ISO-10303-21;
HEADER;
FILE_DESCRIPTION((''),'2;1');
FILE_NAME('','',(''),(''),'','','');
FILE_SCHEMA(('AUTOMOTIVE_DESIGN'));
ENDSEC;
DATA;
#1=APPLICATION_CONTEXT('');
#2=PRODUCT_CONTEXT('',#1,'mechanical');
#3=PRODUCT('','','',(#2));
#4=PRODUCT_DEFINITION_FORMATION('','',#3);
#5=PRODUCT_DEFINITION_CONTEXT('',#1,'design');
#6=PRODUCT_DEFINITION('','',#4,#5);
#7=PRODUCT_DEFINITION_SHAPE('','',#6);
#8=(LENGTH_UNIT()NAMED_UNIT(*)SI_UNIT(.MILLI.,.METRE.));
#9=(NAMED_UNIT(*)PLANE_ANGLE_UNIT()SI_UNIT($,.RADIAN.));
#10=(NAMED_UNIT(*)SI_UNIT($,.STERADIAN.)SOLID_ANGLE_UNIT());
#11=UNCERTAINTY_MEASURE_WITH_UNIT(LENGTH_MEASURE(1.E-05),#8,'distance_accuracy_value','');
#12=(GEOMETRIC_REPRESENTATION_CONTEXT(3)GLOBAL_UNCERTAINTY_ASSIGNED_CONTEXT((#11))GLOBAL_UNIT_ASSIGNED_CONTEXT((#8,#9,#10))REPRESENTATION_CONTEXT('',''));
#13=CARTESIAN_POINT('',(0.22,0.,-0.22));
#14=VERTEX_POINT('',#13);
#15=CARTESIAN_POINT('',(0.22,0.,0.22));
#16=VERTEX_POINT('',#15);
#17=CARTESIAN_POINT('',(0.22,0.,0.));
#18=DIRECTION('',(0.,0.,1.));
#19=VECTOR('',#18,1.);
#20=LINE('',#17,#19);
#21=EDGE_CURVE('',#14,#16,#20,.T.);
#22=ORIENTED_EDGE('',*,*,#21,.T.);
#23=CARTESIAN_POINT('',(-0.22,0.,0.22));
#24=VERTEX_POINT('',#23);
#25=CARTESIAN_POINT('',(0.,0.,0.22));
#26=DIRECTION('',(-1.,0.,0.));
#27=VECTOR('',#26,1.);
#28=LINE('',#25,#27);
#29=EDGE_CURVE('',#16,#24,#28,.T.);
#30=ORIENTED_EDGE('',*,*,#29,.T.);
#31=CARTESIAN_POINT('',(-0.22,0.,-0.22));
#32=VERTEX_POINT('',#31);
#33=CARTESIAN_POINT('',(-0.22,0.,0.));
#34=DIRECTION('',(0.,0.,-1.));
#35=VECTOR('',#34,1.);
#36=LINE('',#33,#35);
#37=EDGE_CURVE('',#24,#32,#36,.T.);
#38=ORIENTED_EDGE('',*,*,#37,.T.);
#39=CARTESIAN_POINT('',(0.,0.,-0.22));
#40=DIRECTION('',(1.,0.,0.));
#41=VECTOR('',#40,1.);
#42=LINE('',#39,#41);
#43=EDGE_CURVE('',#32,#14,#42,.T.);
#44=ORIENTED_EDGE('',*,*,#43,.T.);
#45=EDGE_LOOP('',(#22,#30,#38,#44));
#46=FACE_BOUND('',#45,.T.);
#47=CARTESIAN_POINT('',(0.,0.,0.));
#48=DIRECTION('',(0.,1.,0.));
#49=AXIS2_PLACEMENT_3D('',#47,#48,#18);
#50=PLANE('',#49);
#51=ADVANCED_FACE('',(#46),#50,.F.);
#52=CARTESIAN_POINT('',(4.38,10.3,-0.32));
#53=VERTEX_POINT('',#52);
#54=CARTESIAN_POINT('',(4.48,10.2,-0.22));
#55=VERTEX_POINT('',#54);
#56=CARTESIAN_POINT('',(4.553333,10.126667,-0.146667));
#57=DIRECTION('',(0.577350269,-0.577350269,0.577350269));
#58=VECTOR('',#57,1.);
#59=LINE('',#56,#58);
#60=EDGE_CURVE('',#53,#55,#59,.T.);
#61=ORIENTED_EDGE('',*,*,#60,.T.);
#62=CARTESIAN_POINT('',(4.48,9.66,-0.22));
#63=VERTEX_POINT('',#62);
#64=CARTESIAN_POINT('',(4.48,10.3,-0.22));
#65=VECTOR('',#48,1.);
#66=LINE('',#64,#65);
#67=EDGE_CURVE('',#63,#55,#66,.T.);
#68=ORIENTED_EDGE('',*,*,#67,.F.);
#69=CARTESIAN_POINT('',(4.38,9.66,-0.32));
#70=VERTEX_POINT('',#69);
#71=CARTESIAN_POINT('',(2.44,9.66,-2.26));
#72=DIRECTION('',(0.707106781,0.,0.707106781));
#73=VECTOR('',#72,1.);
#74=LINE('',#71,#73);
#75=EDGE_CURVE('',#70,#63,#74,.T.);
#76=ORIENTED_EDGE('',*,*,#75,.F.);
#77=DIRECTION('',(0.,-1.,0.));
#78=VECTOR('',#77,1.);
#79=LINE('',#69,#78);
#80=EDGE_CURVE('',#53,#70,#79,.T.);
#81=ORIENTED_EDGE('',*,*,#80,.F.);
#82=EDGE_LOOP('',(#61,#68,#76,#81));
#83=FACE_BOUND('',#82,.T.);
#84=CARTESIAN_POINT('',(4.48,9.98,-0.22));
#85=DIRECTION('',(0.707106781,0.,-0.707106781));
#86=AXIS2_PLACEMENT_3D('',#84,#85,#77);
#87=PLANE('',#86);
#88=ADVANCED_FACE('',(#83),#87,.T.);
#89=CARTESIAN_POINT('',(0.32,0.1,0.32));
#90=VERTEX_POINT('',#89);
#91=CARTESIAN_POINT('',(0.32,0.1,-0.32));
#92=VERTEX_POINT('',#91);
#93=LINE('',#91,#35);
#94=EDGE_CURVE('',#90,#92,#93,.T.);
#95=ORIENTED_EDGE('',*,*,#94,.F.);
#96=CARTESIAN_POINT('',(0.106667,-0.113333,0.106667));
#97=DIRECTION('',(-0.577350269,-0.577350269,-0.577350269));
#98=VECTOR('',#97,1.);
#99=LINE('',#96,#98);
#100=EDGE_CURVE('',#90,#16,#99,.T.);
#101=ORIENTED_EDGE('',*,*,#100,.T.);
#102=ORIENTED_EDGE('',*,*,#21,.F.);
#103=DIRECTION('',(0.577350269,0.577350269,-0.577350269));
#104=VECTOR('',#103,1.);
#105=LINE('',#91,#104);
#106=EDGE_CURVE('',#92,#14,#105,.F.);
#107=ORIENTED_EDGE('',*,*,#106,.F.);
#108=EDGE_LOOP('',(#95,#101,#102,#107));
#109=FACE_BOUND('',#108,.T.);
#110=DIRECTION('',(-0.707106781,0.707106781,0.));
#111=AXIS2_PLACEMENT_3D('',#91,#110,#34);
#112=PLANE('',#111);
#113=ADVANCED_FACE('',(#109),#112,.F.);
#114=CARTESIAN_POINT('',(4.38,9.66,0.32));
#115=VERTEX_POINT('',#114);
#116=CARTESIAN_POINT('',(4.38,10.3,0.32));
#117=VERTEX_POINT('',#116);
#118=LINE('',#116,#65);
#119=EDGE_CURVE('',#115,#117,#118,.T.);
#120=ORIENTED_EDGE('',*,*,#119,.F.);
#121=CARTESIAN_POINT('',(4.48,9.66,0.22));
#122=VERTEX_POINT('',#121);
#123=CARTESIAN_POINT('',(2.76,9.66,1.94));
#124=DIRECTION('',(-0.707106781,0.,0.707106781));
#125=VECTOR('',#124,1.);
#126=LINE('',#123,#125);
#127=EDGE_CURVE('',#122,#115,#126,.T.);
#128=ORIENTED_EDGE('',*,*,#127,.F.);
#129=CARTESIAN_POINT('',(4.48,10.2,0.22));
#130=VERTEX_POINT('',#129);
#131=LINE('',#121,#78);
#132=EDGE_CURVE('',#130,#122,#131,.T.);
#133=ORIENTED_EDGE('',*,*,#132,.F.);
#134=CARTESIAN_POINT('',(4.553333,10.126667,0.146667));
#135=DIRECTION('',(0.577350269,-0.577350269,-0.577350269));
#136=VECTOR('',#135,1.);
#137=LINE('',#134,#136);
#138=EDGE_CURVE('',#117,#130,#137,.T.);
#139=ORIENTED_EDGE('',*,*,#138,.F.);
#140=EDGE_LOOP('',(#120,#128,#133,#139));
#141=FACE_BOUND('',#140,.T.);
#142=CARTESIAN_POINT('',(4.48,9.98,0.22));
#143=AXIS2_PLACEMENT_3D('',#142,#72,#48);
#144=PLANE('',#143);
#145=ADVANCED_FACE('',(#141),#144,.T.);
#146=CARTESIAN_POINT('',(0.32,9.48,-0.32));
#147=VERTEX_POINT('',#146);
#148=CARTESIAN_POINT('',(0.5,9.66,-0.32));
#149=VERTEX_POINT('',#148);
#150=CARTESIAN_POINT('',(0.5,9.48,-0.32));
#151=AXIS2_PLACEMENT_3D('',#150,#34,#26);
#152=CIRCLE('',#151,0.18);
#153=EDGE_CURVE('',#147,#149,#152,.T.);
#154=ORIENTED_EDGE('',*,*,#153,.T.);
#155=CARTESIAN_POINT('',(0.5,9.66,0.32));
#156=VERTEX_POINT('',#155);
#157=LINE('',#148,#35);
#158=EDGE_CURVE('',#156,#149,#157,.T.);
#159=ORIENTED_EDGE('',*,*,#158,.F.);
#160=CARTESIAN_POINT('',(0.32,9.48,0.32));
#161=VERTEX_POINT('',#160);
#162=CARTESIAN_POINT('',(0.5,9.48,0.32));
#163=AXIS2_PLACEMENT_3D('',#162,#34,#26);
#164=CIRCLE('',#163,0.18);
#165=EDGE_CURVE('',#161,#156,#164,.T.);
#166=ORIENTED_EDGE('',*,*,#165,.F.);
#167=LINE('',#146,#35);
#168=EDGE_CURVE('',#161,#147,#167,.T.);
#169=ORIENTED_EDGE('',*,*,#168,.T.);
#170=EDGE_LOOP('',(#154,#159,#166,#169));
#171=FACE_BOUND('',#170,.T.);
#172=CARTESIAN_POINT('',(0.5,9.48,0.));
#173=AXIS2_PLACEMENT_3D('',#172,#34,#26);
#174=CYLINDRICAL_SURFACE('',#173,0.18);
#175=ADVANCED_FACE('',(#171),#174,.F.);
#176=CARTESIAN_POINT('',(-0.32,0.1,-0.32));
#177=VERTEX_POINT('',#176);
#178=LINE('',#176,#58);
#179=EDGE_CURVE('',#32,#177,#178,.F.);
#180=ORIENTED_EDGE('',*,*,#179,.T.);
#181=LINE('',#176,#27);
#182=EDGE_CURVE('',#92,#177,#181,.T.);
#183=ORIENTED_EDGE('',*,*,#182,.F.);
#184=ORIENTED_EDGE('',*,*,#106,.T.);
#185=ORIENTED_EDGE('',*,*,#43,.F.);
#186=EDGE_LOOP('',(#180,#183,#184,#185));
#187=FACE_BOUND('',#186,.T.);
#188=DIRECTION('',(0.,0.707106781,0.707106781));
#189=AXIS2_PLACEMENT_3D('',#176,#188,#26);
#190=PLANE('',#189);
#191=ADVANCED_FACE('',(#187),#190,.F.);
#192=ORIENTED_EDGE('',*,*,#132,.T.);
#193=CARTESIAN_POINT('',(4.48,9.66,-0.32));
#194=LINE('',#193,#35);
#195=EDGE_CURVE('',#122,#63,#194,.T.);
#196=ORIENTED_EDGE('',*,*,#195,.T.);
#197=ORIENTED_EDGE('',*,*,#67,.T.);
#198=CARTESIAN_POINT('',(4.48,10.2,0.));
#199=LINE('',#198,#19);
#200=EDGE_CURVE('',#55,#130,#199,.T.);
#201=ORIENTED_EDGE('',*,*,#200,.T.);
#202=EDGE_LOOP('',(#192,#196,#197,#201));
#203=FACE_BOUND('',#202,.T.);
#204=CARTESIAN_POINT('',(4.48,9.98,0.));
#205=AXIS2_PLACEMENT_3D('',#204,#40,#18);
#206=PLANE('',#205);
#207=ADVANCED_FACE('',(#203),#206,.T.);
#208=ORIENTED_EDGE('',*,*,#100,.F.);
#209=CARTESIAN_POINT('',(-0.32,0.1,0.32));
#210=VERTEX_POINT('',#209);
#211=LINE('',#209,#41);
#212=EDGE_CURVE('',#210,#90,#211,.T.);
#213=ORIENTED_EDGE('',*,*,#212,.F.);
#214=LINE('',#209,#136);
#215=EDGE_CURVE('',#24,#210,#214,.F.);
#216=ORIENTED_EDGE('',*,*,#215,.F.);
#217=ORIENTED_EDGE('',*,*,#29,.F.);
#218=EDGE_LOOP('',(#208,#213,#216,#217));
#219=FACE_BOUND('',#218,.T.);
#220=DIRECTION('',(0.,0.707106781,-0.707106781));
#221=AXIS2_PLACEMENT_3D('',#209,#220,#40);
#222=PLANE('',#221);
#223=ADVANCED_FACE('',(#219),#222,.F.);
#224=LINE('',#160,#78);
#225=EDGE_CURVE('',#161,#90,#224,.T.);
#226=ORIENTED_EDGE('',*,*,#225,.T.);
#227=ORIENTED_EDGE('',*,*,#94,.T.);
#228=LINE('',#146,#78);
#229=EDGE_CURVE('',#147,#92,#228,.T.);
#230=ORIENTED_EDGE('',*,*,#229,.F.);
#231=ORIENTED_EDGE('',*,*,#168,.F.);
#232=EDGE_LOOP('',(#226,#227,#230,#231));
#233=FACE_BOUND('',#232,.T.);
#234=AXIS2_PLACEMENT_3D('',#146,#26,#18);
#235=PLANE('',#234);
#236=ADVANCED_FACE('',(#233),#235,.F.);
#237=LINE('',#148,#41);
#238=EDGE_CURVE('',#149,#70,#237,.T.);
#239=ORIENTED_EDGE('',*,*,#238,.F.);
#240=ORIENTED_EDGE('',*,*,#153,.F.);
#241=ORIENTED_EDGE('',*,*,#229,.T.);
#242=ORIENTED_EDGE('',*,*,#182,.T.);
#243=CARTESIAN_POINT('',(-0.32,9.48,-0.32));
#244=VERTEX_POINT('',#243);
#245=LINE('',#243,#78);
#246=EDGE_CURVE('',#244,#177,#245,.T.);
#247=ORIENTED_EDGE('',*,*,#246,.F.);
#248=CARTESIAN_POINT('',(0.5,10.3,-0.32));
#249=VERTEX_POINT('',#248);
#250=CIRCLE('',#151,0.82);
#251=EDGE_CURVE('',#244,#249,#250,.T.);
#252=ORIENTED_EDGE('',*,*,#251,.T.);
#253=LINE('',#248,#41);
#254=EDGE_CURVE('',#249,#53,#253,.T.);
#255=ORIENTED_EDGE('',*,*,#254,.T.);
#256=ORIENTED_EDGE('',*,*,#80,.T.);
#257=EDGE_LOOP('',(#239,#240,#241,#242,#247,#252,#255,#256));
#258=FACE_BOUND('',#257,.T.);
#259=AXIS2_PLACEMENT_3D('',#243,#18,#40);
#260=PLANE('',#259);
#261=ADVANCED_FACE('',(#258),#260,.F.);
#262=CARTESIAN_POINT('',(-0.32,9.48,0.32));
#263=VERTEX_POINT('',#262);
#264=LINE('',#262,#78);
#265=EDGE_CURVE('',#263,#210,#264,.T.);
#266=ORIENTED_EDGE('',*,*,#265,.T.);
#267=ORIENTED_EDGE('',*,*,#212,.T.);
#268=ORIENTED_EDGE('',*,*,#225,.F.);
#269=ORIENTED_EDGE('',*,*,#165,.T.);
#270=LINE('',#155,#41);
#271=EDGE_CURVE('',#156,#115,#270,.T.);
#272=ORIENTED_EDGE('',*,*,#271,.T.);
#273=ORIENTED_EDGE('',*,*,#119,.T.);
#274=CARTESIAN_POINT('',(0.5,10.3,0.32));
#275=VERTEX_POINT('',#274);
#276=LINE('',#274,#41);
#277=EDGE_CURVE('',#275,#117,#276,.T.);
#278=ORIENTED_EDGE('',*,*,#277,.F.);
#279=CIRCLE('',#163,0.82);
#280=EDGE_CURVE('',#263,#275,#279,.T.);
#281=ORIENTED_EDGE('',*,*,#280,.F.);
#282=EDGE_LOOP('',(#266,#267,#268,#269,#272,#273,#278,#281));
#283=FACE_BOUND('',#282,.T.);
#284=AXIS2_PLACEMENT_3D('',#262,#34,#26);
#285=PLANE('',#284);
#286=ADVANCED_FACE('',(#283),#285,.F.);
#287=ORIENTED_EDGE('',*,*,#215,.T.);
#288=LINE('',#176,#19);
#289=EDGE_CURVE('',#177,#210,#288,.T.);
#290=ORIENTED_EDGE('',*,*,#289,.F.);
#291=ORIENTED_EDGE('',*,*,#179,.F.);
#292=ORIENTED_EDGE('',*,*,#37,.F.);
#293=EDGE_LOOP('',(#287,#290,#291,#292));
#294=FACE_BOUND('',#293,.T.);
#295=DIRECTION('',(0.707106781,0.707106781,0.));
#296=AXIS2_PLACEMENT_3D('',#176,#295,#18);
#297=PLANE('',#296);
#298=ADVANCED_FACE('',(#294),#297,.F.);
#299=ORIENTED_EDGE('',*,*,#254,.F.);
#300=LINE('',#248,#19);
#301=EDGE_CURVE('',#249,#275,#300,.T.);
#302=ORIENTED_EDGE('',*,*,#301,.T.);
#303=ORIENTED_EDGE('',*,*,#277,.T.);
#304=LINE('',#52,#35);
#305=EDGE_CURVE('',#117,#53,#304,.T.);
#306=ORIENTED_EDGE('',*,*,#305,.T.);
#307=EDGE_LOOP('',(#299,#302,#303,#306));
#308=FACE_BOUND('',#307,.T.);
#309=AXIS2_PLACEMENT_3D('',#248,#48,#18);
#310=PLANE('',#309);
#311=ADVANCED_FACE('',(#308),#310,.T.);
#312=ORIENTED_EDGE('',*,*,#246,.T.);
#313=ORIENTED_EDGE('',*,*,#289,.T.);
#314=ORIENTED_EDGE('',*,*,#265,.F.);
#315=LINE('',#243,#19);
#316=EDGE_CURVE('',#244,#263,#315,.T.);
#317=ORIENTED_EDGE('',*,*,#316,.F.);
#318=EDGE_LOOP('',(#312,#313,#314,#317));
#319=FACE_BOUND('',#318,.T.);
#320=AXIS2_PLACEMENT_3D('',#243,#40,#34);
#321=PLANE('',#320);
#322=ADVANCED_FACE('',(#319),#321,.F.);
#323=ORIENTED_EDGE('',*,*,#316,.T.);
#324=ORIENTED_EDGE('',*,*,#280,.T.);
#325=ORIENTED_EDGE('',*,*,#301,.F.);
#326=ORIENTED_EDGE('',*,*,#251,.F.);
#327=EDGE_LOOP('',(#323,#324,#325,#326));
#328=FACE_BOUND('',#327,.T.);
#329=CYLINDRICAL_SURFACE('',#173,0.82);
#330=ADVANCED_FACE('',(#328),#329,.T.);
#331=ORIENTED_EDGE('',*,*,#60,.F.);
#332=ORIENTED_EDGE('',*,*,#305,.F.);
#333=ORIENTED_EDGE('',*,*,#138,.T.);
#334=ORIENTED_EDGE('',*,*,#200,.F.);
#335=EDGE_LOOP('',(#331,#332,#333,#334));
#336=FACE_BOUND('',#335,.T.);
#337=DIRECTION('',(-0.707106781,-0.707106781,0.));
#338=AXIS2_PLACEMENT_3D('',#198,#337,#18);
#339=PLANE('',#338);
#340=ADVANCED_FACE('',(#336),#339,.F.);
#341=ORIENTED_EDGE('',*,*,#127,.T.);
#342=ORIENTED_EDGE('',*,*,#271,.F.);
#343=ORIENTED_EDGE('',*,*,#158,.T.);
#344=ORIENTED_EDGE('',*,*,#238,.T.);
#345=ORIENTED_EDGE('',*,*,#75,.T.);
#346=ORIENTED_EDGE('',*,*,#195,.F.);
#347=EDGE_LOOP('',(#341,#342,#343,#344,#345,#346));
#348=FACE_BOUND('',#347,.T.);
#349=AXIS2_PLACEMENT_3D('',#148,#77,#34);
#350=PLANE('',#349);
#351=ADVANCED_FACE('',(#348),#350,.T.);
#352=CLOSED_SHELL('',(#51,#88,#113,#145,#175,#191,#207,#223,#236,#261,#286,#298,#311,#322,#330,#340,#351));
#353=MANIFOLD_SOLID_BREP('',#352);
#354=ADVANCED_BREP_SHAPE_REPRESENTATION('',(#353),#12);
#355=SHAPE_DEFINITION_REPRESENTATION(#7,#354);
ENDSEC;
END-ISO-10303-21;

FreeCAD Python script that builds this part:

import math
import FreeCAD as App
import Part
import Sketcher
from FreeCAD import Vector
Q = App.Units.Quantity


def edges_at(feature, points):
    """Names of the edges that pass closest to the given points."""
    edges = feature.Shape.Edges
    near = lambda p: min(range(len(edges)), key=lambda i: edges[i].distToShape(Part.Vertex(*p))[0])
    return sorted({f"Edge{near(p) + 1}" for p in points})

doc = App.newDocument("Part")
params = doc.addObject("Spreadsheet::Sheet", "Params")
for row, (alias, value) in enumerate([
    ("sketch1_width", "0.64 mm"),
    ("sketch2_radius", "0.5 mm"),
    ("sketch2_width", "3.98 mm"),
    ("sketch2_height", "9.48 mm"),
    ("chamfer_size", "0.1 mm"),
], start=1):
    params.set(f"A{row}", alias)
    params.set(f"B{row}", "=" + value)
    params.setAlias(f"B{row}", alias)

body = doc.addObject("PartDesign::Body", "Body")

sketch1 = body.newObject("Sketcher::SketchObject", "Sketch")
sketch1.AttachmentSupport = (doc.getObject("XZ_Plane"), [""])
sketch1.MapMode = "FlatFace"
sketch1.addGeometry(Part.LineSegment(Vector(-0.32, -0.32, 0), Vector(-0.32, 0.32, 0)), False)
sketch1.addGeometry(Part.LineSegment(Vector(-0.32, 0.32, 0), Vector(0.32, 0.32, 0)), False)
sketch1.addGeometry(Part.LineSegment(Vector(0.32, 0.32, 0), Vector(0.32, -0.32, 0)), False)
sketch1.addGeometry(Part.LineSegment(Vector(0.32, -0.32, 0), Vector(-0.32, -0.32, 0)), False)
sketch1.addConstraint(Sketcher.Constraint("Coincident", 0, 2, 1, 1))
sketch1.addConstraint(Sketcher.Constraint("Coincident", 1, 2, 2, 1))
sketch1.addConstraint(Sketcher.Constraint("Coincident", 2, 2, 3, 1))
sketch1.addConstraint(Sketcher.Constraint("Coincident", 3, 2, 0, 1))
sketch1.addConstraint(Sketcher.Constraint("Vertical", 0))
sketch1.addConstraint(Sketcher.Constraint("Horizontal", 1))
sketch1.addConstraint(Sketcher.Constraint("Vertical", 2))
sketch1.addConstraint(Sketcher.Constraint("Horizontal", 3))
sketch1.addConstraint(Sketcher.Constraint("Symmetric", 0, 2, 2, 2, -1, 1))
sketch1.addConstraint(Sketcher.Constraint("Equal", 3, 0))
sketch1.addConstraint(Sketcher.Constraint("DistanceX", 1, 1, 1, 2, Q("0.64 mm")))
sketch1.setExpression("Constraints[10]", "Params.sketch1_width")

sketch2 = body.newObject("Sketcher::SketchObject", "Sketch001")
sketch2.AttachmentSupport = (doc.getObject("XY_Plane"), [""])
sketch2.MapMode = "FlatFace"
sketch2.addGeometry(Part.LineSegment(Vector(0, 0, 0), Vector(0, 9.48, 0)), False)
sketch2.addGeometry(Part.ArcOfCircle(Part.Circle(Vector(0.5, 9.48, 0), Vector(0, 0, 1), 0.5), math.radians(90), math.radians(180)), False)
sketch2.addGeometry(Part.LineSegment(Vector(0.5, 9.98, 0), Vector(4.48, 9.98, 0)), False)
sketch2.addConstraint(Sketcher.Constraint("Tangent", 0, 2, 1, 2))
sketch2.addConstraint(Sketcher.Constraint("Tangent", 1, 1, 2, 1))
sketch2.addConstraint(Sketcher.Constraint("Vertical", 0))
sketch2.addConstraint(Sketcher.Constraint("Horizontal", 2))
sketch2.addConstraint(Sketcher.Constraint("Coincident", 0, 1, -1, 1))
sketch2.addConstraint(Sketcher.Constraint("Radius", 1, Q("0.5 mm")))
sketch2.addConstraint(Sketcher.Constraint("DistanceX", 2, 1, 2, 2, Q("3.98 mm")))
sketch2.addConstraint(Sketcher.Constraint("DistanceY", 0, 1, 0, 2, Q("9.48 mm")))
sketch2.setExpression("Constraints[5]", "Params.sketch2_radius")
sketch2.setExpression("Constraints[6]", "Params.sketch2_width")
sketch2.setExpression("Constraints[7]", "Params.sketch2_height")
doc.recompute()

additivepipe = body.newObject("PartDesign::AdditivePipe", "AdditivePipe")
additivepipe.Profile = sketch1
additivepipe.Spine = (sketch2, ["Edge1", "Edge2", "Edge3"])
doc.recompute()

chamfer = body.newObject("PartDesign::Chamfer", "Chamfer")
chamfer.Base = (additivepipe, edges_at(additivepipe, [
    (4.48, 9.98, 0.32),
    (4.48, 10.3, 0),
    (4.48, 9.98, -0.32),
    (0, 0, 0.32),
    (-0.32, 0, 0),
    (0, 0, -0.32),
    (0.32, 0, 0),
]))
chamfer.setExpression("Size", "Params.chamfer_size")

doc.recompute()
